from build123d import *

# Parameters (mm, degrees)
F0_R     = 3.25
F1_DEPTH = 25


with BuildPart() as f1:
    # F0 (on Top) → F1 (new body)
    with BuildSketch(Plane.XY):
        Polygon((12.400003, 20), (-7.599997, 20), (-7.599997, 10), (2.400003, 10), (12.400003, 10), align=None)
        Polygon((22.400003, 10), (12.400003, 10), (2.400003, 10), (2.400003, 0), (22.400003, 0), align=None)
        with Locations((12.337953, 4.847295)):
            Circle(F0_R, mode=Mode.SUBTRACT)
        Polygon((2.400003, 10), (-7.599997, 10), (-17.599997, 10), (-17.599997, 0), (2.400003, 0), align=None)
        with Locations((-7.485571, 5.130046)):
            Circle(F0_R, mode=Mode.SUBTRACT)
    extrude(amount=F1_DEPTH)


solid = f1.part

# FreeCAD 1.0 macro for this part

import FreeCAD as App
import Part
import Sketcher

V = App.Vector


def add_polygon(sketch, points):
    """Adds a closed chain of lines whose ends are joined by coincident constraints."""
    first, n = sketch.GeometryCount, len(points)
    for a, b in zip(points, points[1:] + points[:1]):
        sketch.addGeometry(Part.LineSegment(App.Vector(*a, 0), App.Vector(*b, 0)), False)
    for i in range(n):
        sketch.addConstraint(Sketcher.Constraint("Coincident", first + i, 2, first + (i + 1) % n, 1))

doc = App.newDocument("Part")
body = doc.addObject("PartDesign::Body", "Body")

# Sketch on XY plane
sketch1 = body.newObject("Sketcher::SketchObject", "Sketch")
sketch1.AttachmentSupport = (doc.getObject("XY_Plane"), [""])
sketch1.MapMode = "FlatFace"
add_polygon(sketch1, [(12.4, 20), (-7.6, 20), (-7.6, 10), (-17.6, 10), (-17.6, 0), (22.4, 0), (22.4, 10), (12.4, 10)])  # lines 0-7
sketch1.addGeometry(Part.Circle(V(12.3, 4.8, 0), V(0, 0, 1), 3.2), False)  # 8
sketch1.addGeometry(Part.Circle(V(-7.5, 5.1, 0), V(0, 0, 1), 3.2), False)  # 9
sketch1.addConstraint([
    Sketcher.Constraint("Horizontal", 0),
    Sketcher.Constraint("Vertical", 1),
    Sketcher.Constraint("Horizontal", 2),
    Sketcher.Constraint("Vertical", 3),
    Sketcher.Constraint("Horizontal", 4),
    Sketcher.Constraint("Vertical", 5),
    Sketcher.Constraint("Horizontal", 6),
    Sketcher.Constraint("Vertical", 7),
    Sketcher.Constraint("Equal", 8, 9),
    Sketcher.Constraint("PointOnObject", 3, 2, -1),
    Sketcher.Constraint("Horizontal", 2, 2, 5, 2),
    Sketcher.Constraint("Equal", 2, 6),
    Sketcher.Constraint("Equal", 6, 1),
    Sketcher.Constraint("Equal", 1, 3),
    Sketcher.Constraint("Diameter", 8, 6.5),
    Sketcher.Constraint("DistanceX", 0, 2, 0, 1, 20.0),
    Sketcher.Constraint("DistanceX", 2, 2, 2, 1, 10.0),
    Sketcher.Constraint("DistanceX", 9, 3, -1, 1, 7.485571),
    Sketcher.Constraint("DistanceY", 8, 3, 9, 3, 0.282751),
    Sketcher.Constraint("DistanceX", 0, 2, 8, 3, 19.93795),
    Sketcher.Constraint("DistanceX", -1, 1, 8, 3, 12.337953),
    Sketcher.Constraint("DistanceY", -1, 1, 8, 3, 4.847295),
])
pad1 = body.newObject("PartDesign::Pad", "Pad")
pad1.Profile = sketch1
pad1.Length = 25

doc.recompute()
